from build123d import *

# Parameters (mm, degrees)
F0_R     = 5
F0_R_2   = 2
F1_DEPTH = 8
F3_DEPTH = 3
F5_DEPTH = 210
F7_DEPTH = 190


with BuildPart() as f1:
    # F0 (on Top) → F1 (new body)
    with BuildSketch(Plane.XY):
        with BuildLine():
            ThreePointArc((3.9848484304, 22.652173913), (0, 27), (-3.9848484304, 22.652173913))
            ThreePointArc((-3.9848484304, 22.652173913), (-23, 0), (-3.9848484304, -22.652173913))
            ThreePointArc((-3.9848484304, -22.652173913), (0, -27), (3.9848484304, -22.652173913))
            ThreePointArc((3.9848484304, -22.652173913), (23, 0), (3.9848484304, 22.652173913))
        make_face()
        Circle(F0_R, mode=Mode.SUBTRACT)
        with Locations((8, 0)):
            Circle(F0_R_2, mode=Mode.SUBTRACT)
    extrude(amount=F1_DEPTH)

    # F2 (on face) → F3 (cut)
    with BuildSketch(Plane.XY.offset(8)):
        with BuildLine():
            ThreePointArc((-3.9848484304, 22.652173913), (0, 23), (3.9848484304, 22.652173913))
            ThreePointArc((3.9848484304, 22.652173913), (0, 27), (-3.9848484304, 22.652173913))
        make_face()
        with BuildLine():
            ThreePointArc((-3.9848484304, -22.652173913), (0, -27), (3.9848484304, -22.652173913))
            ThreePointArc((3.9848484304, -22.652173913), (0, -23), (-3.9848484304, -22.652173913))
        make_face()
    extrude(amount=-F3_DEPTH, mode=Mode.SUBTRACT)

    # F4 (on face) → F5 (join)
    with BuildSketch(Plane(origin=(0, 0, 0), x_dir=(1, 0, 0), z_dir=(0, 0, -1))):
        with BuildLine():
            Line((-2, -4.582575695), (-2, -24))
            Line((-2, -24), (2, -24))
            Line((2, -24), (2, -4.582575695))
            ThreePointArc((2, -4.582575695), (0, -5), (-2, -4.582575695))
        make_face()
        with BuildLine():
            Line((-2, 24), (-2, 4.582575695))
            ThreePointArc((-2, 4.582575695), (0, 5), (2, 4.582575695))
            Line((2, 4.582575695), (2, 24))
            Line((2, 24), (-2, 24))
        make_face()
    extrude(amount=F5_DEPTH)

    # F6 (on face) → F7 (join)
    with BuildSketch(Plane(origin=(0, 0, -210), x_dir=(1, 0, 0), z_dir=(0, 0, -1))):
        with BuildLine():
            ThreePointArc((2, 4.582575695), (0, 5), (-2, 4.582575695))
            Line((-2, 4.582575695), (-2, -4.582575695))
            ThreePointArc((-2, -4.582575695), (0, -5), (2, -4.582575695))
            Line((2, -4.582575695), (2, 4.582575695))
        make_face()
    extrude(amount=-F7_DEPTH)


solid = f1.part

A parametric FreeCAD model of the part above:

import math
import FreeCAD as App
import Part
import Sketcher

doc = App.newDocument("Part")
params = doc.addObject("Spreadsheet::Sheet", "Params")
for row, (alias, value) in enumerate([
    ("sketch1_diameter", "10 mm"),
    ("sketch1_diameter2", "4 mm"),
    ("sketch1_radius", "4 mm"),
    ("sketch1_radius2", "23 mm"),
    ("pad1_length", "8 mm"),
    ("sketch2_radius", "23 mm"),
    ("sketch2_radius2", "4 mm"),
    ("pocket1_length", "3 mm"),
    ("sketch3_radius", "5 mm"),
    ("sketch3_width", "4 mm"),
    ("pad2_length", "210 mm"),
    ("sketch4_radius", "5 mm"),
    ("pad3_length", "190 mm"),
], start=1):
    params.set(f"A{row}", alias)
    params.set(f"B{row}", "=" + value)
    params.setAlias(f"B{row}", alias)

body = doc.addObject("PartDesign::Body", "Body")

# Sketch on XY plane
sketch1 = body.newObject("Sketcher::SketchObject", "Sketch")
sketch1.AttachmentSupport = (doc.getObject("XY_Plane"), [""])
sketch1.MapMode = "FlatFace"
sketch1.addGeometry([
    Part.ArcOfCircle(Part.Circle(App.Vector(0, 23, 0), App.Vector(0, 0, 1), 4), math.radians(-4.988542), math.radians(184.988542)),  # 0
    Part.ArcOfCircle(Part.Circle(App.Vector(0, 0, 0), App.Vector(0, 0, 1), 23), math.radians(99.977084), math.radians(260.022916)),  # 1
    Part.ArcOfCircle(Part.Circle(App.Vector(0, -23, 0), App.Vector(0, 0, 1), 4), math.radians(175.011458), math.radians(364.988542)),  # 2
    Part.ArcOfCircle(Part.Circle(App.Vector(0, 0, 0), App.Vector(0, 0, 1), 23), math.radians(-80.022916), math.radians(80.022916)),  # 3
    Part.Circle(App.Vector(0, 0, 0), App.Vector(0, 0, 1), 5),  # 4
    Part.Circle(App.Vector(8, 0, 0), App.Vector(0, 0, 1), 2),  # 5
], False)
sketch1.addConstraint([
    Sketcher.Constraint("Coincident", 0, 2, 1, 1),
    Sketcher.Constraint("Coincident", 1, 2, 2, 1),
    Sketcher.Constraint("Coincident", 2, 2, 3, 1),
    Sketcher.Constraint("Coincident", 3, 2, 0, 1),
    Sketcher.Constraint("Coincident", 1, 3, -1, 1),
    Sketcher.Constraint("Coincident", 3, 3, -1, 1),
    Sketcher.Constraint("Coincident", 4, 3, -1, 1),
    Sketcher.Constraint("Equal", 0, 2),
    Sketcher.Constraint("Equal", 1, 3),
    Sketcher.Constraint("Symmetric", 0, 3, 2, 3, -1, 1),
    Sketcher.Constraint("PointOnObject", 0, 3, -2),
    Sketcher.Constraint("PointOnObject", 5, 3, -1),
    Sketcher.Constraint("Diameter", 4, 10.0),
    Sketcher.Constraint("Diameter", 5, 4.0),
    Sketcher.Constraint("Radius", 0, 4.0),
    Sketcher.Constraint("Radius", 1, 23.0),
    Sketcher.Constraint("DistanceY", -1, 1, 0, 3, 23.0),
    Sketcher.Constraint("DistanceX", -1, 1, 5, 3, 8.0),
])
sketch1.setExpression("Constraints[12]", "Params.sketch1_diameter")
sketch1.setExpression("Constraints[13]", "Params.sketch1_diameter2")
sketch1.setExpression("Constraints[14]", "Params.sketch1_radius")
sketch1.setExpression("Constraints[15]", "Params.sketch1_radius2")
pad1 = body.newObject("PartDesign::Pad", "Pad")
pad1.Profile = sketch1
pad1.setExpression("Length", "Params.pad1_length")

# Sketch on XY plane
sketch2 = body.newObject("Sketcher::SketchObject", "Sketch001")
sketch2.AttachmentSupport = (doc.getObject("XY_Plane"), [""])
sketch2.MapMode = "FlatFace"
sketch2.AttachmentOffset = App.Placement(App.Vector(0, 0, 8), App.Rotation())
sketch2.addGeometry([
    Part.ArcOfCircle(Part.Circle(App.Vector(0, 0, 0), App.Vector(0, 0, 1), 23), math.radians(80.022916), math.radians(99.977084)),
    Part.ArcOfCircle(Part.Circle(App.Vector(0, 23, 0), App.Vector(0, 0, 1), 4), math.radians(-4.988542), math.radians(184.988542)),
    Part.ArcOfCircle(Part.Circle(App.Vector(0, -23, 0), App.Vector(0, 0, 1), 4), math.radians(175.011458), math.radians(364.988542)),
    Part.ArcOfCircle(Part.Circle(App.Vector(0, 0, 0), App.Vector(0, 0, 1), 23), math.radians(-99.977084), math.radians(-80.022916)),
], False)
sketch2.addConstraint([
    Sketcher.Constraint("Coincident", 0, 1, 1, 1),
    Sketcher.Constraint("Coincident", 1, 2, 0, 2),
    Sketcher.Constraint("Coincident", 2, 1, 3, 1),
    Sketcher.Constraint("Coincident", 3, 2, 2, 2),
    Sketcher.Constraint("Coincident", 0, 3, -1, 1),
    Sketcher.Constraint("Coincident", 3, 3, -1, 1),
    Sketcher.Constraint("Equal", 1, 2),
    Sketcher.Constraint("Equal", 0, 3),
    Sketcher.Constraint("Symmetric", 1, 3, 2, 3, -1, 1),
    Sketcher.Constraint("PointOnObject", 1, 3, -2),
    Sketcher.Constraint("Radius", 0, 23.0),
    Sketcher.Constraint("Radius", 1, 4.0),
    Sketcher.Constraint("DistanceY", -1, 1, 1, 3, 23.0),
])
sketch2.setExpression("Constraints[10]", "Params.sketch2_radius")
sketch2.setExpression("Constraints[11]", "Params.sketch2_radius2")
pocket1 = body.newObject("PartDesign::Pocket", "Pocket")
pocket1.Profile = sketch2
pocket1.setExpression("Length", "Params.pocket1_length")

# Sketch on XY plane
sketch3 = body.newObject("Sketcher::SketchObject", "Sketch002")
sketch3.AttachmentSupport = (doc.getObject("XY_Plane"), [""])
sketch3.MapMode = "FlatFace"
sketch3.addGeometry([
    Part.LineSegment(App.Vector(-2, 4.582576, 0), App.Vector(-2, 24, 0)),  # 0
    Part.LineSegment(App.Vector(-2, 24, 0), App.Vector(2, 24, 0)),  # 1
    Part.LineSegment(App.Vector(2, 24, 0), App.Vector(2, 4.582576, 0)),  # 2
    Part.ArcOfCircle(Part.Circle(App.Vector(0, 0, 0), App.Vector(0, 0, 1), 5), math.radians(66.421822), math.radians(113.578178)),  # 3
    Part.LineSegment(App.Vector(-2, -24, 0), App.Vector(-2, -4.582576, 0)),  # 4
    Part.ArcOfCircle(Part.Circle(App.Vector(0, 0, 0), App.Vector(0, 0, 1), 5), math.radians(-113.578178), math.radians(-66.421822)),  # 5
    Part.LineSegment(App.Vector(2, -4.582576, 0), App.Vector(2, -24, 0)),  # 6
    Part.LineSegment(App.Vector(2, -24, 0), App.Vector(-2, -24, 0)),  # 7
], False)
sketch3.addConstraint([
    Sketcher.Constraint("Coincident", 0, 2, 1, 1),
    Sketcher.Constraint("Coincident", 1, 2, 2, 1),
    Sketcher.Constraint("Coincident", 2, 2, 3, 1),
    Sketcher.Constraint("Coincident", 3, 2, 0, 1),
    Sketcher.Constraint("Coincident", 4, 2, 5, 1),
    Sketcher.Constraint("Coincident", 5, 2, 6, 1),
    Sketcher.Constraint("Coincident", 6, 2, 7, 1),
    Sketcher.Constraint("Coincident", 7, 2, 4, 1),
    Sketcher.Constraint("Vertical", 0),
    Sketcher.Constraint("Horizontal", 1),
    Sketcher.Constraint("Vertical", 2),
    Sketcher.Constraint("Vertical", 4),
    Sketcher.Constraint("Vertical", 6),
    Sketcher.Constraint("Horizontal", 7),
    Sketcher.Constraint("Coincident", 3, 3, -1, 1),
    Sketcher.Constraint("Coincident", 5, 3, -1, 1),
    Sketcher.Constraint("Equal", 3, 5),
    Sketcher.Constraint("Symmetric", 0, 2, 6, 2, -1, 1),
    Sketcher.Constraint("Horizontal", 2, 2, 3, 2),
    Sketcher.Constraint("Horizontal", 4, 2, 5, 2),
    Sketcher.Constraint("Radius", 3, 5.0),
    Sketcher.Constraint("DistanceX", 1, 1, 1, 2, 4.0),
    Sketcher.Constraint("DistanceY", -1, 1, 0, 2, 24.0),
])
sketch3.setExpression("Constraints[20]", "Params.sketch3_radius")
sketch3.setExpression("Constraints[21]", "Params.sketch3_width")
pad2 = body.newObject("PartDesign::Pad", "Pad001")
pad2.Profile = sketch3
pad2.setExpression("Length", "Params.pad2_length")
pad2.Reversed = True

# Sketch on XY plane
sketch4 = body.newObject("Sketcher::SketchObject", "Sketch003")
sketch4.AttachmentSupport = (doc.getObject("XY_Plane"), [""])
sketch4.MapMode = "FlatFace"
sketch4.AttachmentOffset = App.Placement(App.Vector(0, 0, -210), App.Rotation())
sketch4.addGeometry([
    Part.ArcOfCircle(Part.Circle(App.Vector(0, 0, 0), App.Vector(0, 0, 1), 5), math.radians(-113.578178), math.radians(-66.421822)),
    Part.LineSegment(App.Vector(-2, -4.582576, 0), App.Vector(-2, 4.582576, 0)),
    Part.ArcOfCircle(Part.Circle(App.Vector(0, 0, 0), App.Vector(0, 0, 1), 5), math.radians(66.421822), math.radians(113.578178)),
    Part.LineSegment(App.Vector(2, 4.582576, 0), App.Vector(2, -4.582576, 0)),
], False)
sketch4.addConstraint([
    Sketcher.Constraint("Coincident", 0, 1, 1, 1),
    Sketcher.Constraint("Coincident", 1, 2, 2, 2),
    Sketcher.Constraint("Coincident", 2, 1, 3, 1),
    Sketcher.Constraint("Coincident", 3, 2, 0, 2),
    Sketcher.Constraint("Vertical", 1),
    Sketcher.Constraint("Vertical", 3),
    Sketcher.Constraint("Coincident", 0, 3, -1, 1),
    Sketcher.Constraint("Coincident", 2, 3, -1, 1),
    Sketcher.Constraint("Equal", 0, 2),
    Sketcher.Constraint("Horizontal", 1, 2, 2, 1),
    Sketcher.Constraint("Radius", 0, 5.0),
    Sketcher.Constraint("DistanceX", 0, 1, -1, 1, 2.0),
])
sketch4.setExpression("Constraints[10]", "Params.sketch4_radius")
pad3 = body.newObject("PartDesign::Pad", "Pad002")
pad3.Profile = sketch4
pad3.setExpression("Length", "Params.pad3_length")

doc.recompute()
